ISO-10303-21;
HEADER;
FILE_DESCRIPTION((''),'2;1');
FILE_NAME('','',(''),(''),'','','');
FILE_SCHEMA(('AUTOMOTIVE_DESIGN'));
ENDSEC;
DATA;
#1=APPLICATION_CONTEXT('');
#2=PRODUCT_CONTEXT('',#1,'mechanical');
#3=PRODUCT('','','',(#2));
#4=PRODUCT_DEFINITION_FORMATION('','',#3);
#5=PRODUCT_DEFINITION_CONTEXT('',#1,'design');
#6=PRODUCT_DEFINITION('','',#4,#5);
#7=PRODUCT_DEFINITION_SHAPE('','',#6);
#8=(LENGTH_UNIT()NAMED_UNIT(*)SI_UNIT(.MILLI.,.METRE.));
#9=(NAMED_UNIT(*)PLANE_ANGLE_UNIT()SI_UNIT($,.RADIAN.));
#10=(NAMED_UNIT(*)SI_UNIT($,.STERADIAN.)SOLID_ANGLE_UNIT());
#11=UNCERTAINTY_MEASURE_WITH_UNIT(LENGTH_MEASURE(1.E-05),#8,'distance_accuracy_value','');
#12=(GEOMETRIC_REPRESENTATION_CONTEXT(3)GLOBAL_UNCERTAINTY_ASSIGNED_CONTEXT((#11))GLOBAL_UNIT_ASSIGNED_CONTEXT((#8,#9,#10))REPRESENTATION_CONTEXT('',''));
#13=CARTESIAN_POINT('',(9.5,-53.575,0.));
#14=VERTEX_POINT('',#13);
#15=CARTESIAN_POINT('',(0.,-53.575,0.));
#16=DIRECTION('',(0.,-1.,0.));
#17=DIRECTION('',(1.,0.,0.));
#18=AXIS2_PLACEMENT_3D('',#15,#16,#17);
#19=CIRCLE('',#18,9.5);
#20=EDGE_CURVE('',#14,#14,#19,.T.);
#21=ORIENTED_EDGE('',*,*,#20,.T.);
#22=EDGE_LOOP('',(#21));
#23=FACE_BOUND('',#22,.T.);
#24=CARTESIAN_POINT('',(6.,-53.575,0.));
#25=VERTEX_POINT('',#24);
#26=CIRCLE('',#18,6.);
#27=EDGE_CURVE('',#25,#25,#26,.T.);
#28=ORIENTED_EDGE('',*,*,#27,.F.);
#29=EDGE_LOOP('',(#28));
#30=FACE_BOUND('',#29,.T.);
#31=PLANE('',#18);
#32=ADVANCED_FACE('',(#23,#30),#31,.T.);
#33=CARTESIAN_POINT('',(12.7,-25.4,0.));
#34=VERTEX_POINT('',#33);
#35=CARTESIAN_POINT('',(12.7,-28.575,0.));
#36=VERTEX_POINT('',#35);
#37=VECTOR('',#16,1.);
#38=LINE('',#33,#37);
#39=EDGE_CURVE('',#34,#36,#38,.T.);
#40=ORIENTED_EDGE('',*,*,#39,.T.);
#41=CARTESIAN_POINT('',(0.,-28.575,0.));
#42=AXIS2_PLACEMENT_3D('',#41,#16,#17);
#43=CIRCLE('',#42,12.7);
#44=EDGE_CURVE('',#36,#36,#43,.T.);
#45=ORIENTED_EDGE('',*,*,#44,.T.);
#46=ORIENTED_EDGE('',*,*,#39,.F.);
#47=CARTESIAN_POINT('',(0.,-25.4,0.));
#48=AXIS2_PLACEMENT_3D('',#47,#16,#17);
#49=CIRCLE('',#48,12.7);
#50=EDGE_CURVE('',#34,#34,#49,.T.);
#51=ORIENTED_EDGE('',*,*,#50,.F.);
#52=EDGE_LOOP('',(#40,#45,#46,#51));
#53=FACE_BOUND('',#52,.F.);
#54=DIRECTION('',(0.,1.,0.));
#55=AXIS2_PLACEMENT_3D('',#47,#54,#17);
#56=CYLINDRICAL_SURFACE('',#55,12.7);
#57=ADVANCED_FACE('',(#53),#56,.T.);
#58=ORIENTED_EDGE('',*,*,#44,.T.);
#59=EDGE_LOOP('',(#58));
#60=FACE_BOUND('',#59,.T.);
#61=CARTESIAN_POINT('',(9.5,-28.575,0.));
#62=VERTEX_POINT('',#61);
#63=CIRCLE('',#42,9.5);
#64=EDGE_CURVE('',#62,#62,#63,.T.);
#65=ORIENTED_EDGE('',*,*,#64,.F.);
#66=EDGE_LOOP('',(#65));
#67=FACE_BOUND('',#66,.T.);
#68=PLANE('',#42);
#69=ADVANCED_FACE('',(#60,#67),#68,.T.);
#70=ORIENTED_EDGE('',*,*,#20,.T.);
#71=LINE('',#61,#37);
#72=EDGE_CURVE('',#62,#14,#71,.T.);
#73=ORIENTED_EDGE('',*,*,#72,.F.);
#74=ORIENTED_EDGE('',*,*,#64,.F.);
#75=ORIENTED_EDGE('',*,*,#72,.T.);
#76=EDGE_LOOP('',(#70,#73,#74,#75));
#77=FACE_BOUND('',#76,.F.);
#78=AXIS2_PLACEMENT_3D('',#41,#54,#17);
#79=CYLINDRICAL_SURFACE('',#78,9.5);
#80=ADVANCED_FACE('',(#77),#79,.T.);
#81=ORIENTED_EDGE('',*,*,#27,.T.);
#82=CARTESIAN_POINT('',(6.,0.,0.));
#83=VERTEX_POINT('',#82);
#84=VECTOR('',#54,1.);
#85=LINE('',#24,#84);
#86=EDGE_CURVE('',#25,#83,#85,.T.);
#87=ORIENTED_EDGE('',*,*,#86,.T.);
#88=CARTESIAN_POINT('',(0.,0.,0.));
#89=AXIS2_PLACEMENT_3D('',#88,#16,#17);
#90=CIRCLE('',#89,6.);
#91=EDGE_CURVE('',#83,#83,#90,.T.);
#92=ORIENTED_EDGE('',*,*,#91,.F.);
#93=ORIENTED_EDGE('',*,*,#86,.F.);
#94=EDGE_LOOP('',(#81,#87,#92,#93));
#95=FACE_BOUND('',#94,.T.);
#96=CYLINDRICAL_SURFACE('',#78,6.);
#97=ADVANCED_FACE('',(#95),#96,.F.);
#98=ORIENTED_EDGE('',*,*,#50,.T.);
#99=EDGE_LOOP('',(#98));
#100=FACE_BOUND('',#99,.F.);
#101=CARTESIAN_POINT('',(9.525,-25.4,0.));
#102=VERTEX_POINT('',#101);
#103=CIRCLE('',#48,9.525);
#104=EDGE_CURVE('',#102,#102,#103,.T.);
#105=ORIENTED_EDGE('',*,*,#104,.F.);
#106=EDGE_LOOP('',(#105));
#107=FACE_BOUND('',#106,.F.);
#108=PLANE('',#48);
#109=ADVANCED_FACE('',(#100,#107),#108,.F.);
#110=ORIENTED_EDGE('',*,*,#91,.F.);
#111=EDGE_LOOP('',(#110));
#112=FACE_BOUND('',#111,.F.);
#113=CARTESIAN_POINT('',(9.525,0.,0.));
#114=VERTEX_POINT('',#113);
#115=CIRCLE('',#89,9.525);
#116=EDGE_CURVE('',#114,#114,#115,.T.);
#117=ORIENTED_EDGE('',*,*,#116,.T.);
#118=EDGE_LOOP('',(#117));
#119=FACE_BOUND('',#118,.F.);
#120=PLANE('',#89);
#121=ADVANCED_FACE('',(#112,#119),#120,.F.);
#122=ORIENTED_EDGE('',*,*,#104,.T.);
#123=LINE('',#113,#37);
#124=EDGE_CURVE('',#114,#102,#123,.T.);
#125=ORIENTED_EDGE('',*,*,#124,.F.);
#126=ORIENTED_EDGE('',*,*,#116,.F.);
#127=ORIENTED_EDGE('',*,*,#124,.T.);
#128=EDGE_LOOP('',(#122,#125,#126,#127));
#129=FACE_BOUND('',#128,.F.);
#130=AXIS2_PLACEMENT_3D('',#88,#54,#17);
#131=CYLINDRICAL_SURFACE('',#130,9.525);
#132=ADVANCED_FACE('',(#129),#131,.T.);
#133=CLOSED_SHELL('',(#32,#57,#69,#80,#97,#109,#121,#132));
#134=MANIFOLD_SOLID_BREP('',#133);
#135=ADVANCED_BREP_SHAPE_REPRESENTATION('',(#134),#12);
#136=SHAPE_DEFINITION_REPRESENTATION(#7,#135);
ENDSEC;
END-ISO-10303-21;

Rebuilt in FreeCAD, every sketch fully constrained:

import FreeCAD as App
import Part
import Sketcher

doc = App.newDocument("Part")
body = doc.addObject("PartDesign::Body", "Body")

sketch1 = body.newObject("Sketcher::SketchObject", "Sketch")
sketch1.AttachmentSupport = (doc.getObject("XZ_Plane"), [""])
sketch1.MapMode = "FlatFace"
sketch1.addGeometry([
    Part.Circle(App.Vector(0, 0, 0), App.Vector(0, 0, 1), 10),
    Part.Circle(App.Vector(0, 0, 0), App.Vector(0, 0, 1), 6),
], False)
sketch1.addConstraint([
    Sketcher.Constraint("Coincident", 0, 3, -1, 1),
    Sketcher.Constraint("Coincident", 1, 3, -1, 1),
    Sketcher.Constraint("Diameter", 1, 12.0),
    Sketcher.Constraint("Diameter", 0, 19.05),
])
pad1 = body.newObject("PartDesign::Pad", "Pad")
pad1.Profile = sketch1
pad1.Length = 25.4

sketch2 = body.newObject("Sketcher::SketchObject", "Sketch001")
sketch2.AttachmentSupport = (doc.getObject("XZ_Plane"), [""])
sketch2.MapMode = "FlatFace"
sketch2.AttachmentOffset = App.Placement(App.Vector(0, 0, 25.4), App.Rotation())
sketch2.addGeometry([
    Part.Circle(App.Vector(0, 0, 0), App.Vector(0, 0, 1), 13),
    Part.Circle(App.Vector(0, 0, 0), App.Vector(0, 0, 1), 6),
], False)
sketch2.addConstraint([
    Sketcher.Constraint("Coincident", 0, 3, -1, 1),
    Sketcher.Constraint("Coincident", 1, 3, -1, 1),
    Sketcher.Constraint("Diameter", 1, 12.0),
    Sketcher.Constraint("Diameter", 0, 25.4),
])
pad2 = body.newObject("PartDesign::Pad", "Pad001")
pad2.Profile = sketch2
pad2.Length = 3.175

sketch3 = body.newObject("Sketcher::SketchObject", "Sketch002")
sketch3.AttachmentSupport = (doc.getObject("XZ_Plane"), [""])
sketch3.MapMode = "FlatFace"
sketch3.AttachmentOffset = App.Placement(App.Vector(0, 0, 28.575), App.Rotation())
sketch3.addGeometry([
    Part.Circle(App.Vector(0, 0, 0), App.Vector(0, 0, 1), 10),
    Part.Circle(App.Vector(0, 0, 0), App.Vector(0, 0, 1), 6),
], False)
sketch3.addConstraint([
    Sketcher.Constraint("Coincident", 0, 3, -1, 1),
    Sketcher.Constraint("Coincident", 1, 3, -1, 1),
    Sketcher.Constraint("Diameter", 0, 19.0),
    Sketcher.Constraint("Diameter", 1, 12.0),
])
pad3 = body.newObject("PartDesign::Pad", "Pad002")
pad3.Profile = sketch3
pad3.Length = 25

doc.recompute()
